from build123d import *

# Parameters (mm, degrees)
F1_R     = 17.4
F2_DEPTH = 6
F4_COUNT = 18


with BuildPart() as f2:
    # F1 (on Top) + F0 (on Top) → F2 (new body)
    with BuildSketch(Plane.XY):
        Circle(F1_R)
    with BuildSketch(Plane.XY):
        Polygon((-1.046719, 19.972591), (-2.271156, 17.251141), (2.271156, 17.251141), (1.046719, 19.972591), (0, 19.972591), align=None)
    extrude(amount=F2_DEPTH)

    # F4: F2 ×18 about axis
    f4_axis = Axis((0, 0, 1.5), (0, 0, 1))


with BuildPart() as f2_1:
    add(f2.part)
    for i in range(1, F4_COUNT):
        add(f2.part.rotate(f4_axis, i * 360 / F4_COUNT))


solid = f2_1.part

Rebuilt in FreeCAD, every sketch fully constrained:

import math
import FreeCAD as App
import Part
import Sketcher
from FreeCAD import Vector

doc = App.newDocument("Part")
body = doc.addObject("PartDesign::Body", "Body")

sketch1 = body.newObject("Sketcher::SketchObject", "Sketch")
sketch1.AttachmentSupport = (doc.getObject("XY_Plane"), [""])
sketch1.MapMode = "FlatFace"
sketch1.addGeometry([
    Part.ArcOfCircle(Part.Circle(Vector(0, 0, 0), Vector(0, 0, 1), 17.4), math.radians(97.49999), math.radians(442.50001)),
    Part.LineSegment(Vector(2.271156, 17.251141, 0), Vector(2.271153, 17.251141, 0)),
    Part.LineSegment(Vector(2.271156, 17.251141, 0), Vector(1.046719, 19.972591, 0)),
    Part.LineSegment(Vector(1.046719, 19.972591, 0), Vector(-1.046719, 19.972591, 0)),
    Part.LineSegment(Vector(-1.046719, 19.972591, 0), Vector(-2.271156, 17.251141, 0)),
    Part.LineSegment(Vector(-2.271153, 17.251141, 0), Vector(-2.271156, 17.251141, 0)),
], False)
sketch1.addConstraint([
    Sketcher.Constraint("Coincident", 0, 2, 1, 1),
    Sketcher.Constraint("Coincident", 1, 2, 2, 1),
    Sketcher.Constraint("Coincident", 2, 2, 3, 1),
    Sketcher.Constraint("Coincident", 3, 2, 4, 1),
    Sketcher.Constraint("Coincident", 4, 2, 5, 1),
    Sketcher.Constraint("Coincident", 5, 2, 0, 1),
    Sketcher.Constraint("Horizontal", 1),
    Sketcher.Constraint("Horizontal", 3),
    Sketcher.Constraint("Horizontal", 5),
    Sketcher.Constraint("Coincident", 0, 3, -1, 1),
    Sketcher.Constraint("Symmetric", 0, 2, 4, 2, -2),
    Sketcher.Constraint("Equal", 1, 5),
    Sketcher.Constraint("Equal", 2, 4),
    Sketcher.Constraint("Radius", 0, 17.4),
    Sketcher.Constraint("DistanceX", 3, 2, 3, 1, 2.093438),
    Sketcher.Constraint("DistanceY", -1, 1, 0, 2, 17.251141),
    Sketcher.Constraint("DistanceY", -1, 1, 2, 2, 19.972591),
])
pad1 = body.newObject("PartDesign::Pad", "Pad")
pad1.Profile = sketch1
pad1.Length = 6
body2 = doc.addObject("PartDesign::Body", "Body001")
doc.recompute()

body2.BaseFeature = body
doc.recompute()

body3 = doc.addObject("PartDesign::Body", "Body002")
body3.BaseFeature = body
body3.Placement = App.Placement(Vector(0, 0, 0), App.Rotation(Vector(0, 0, 1), 20))
boolean = body2.newObject("PartDesign::Boolean", "Boolean")
boolean.Type = "Fuse"
boolean.addObjects([body3])
doc.recompute()

body4 = doc.addObject("PartDesign::Body", "Body003")
body4.BaseFeature = body
body4.Placement = App.Placement(Vector(0, 0, 0), App.Rotation(Vector(0, 0, 1), 40))
boolean2 = body2.newObject("PartDesign::Boolean", "Boolean001")
boolean2.Type = "Fuse"
boolean2.addObjects([body4])
doc.recompute()

body5 = doc.addObject("PartDesign::Body", "Body004")
body5.BaseFeature = body
body5.Placement = App.Placement(Vector(0, 0, 0), App.Rotation(Vector(0, 0, 1), 60))
boolean3 = body2.newObject("PartDesign::Boolean", "Boolean002")
boolean3.Type = "Fuse"
boolean3.addObjects([body5])
doc.recompute()

body6 = doc.addObject("PartDesign::Body", "Body005")
body6.BaseFeature = body
body6.Placement = App.Placement(Vector(0, 0, 0), App.Rotation(Vector(0, 0, 1), 80))
boolean4 = body2.newObject("PartDesign::Boolean", "Boolean003")
boolean4.Type = "Fuse"
boolean4.addObjects([body6])
doc.recompute()

body7 = doc.addObject("PartDesign::Body", "Body006")
body7.BaseFeature = body
body7.Placement = App.Placement(Vector(0, 0, 0), App.Rotation(Vector(0, 0, 1), 100))
boolean5 = body2.newObject("PartDesign::Boolean", "Boolean004")
boolean5.Type = "Fuse"
boolean5.addObjects([body7])
doc.recompute()

body8 = doc.addObject("PartDesign::Body", "Body007")
body8.BaseFeature = body
body8.Placement = App.Placement(Vector(0, 0, 0), App.Rotation(Vector(0, 0, 1), 120))
boolean6 = body2.newObject("PartDesign::Boolean", "Boolean005")
boolean6.Type = "Fuse"
boolean6.addObjects([body8])
doc.recompute()

body9 = doc.addObject("PartDesign::Body", "Body008")
body9.BaseFeature = body
body9.Placement = App.Placement(Vector(0, 0, 0), App.Rotation(Vector(0, 0, 1), 140))
boolean7 = body2.newObject("PartDesign::Boolean", "Boolean006")
boolean7.Type = "Fuse"
boolean7.addObjects([body9])
doc.recompute()

body10 = doc.addObject("PartDesign::Body", "Body009")
body10.BaseFeature = body
body10.Placement = App.Placement(Vector(0, 0, 0), App.Rotation(Vector(0, 0, 1), 160))
boolean8 = body2.newObject("PartDesign::Boolean", "Boolean007")
boolean8.Type = "Fuse"
boolean8.addObjects([body10])
doc.recompute()

body11 = doc.addObject("PartDesign::Body", "Body010")
body11.BaseFeature = body
body11.Placement = App.Placement(Vector(0, 0, 0), App.Rotation(Vector(0, 0, 1), 180))
boolean9 = body2.newObject("PartDesign::Boolean", "Boolean008")
boolean9.Type = "Fuse"
boolean9.addObjects([body11])
doc.recompute()

body12 = doc.addObject("PartDesign::Body", "Body011")
body12.BaseFeature = body
body12.Placement = App.Placement(Vector(0, 0, 0), App.Rotation(Vector(0, 0, 1), 200))
boolean10 = body2.newObject("PartDesign::Boolean", "Boolean009")
boolean10.Type = "Fuse"
boolean10.addObjects([body12])
doc.recompute()

body13 = doc.addObject("PartDesign::Body", "Body012")
body13.BaseFeature = body
body13.Placement = App.Placement(Vector(0, 0, 0), App.Rotation(Vector(0, 0, 1), 220))
boolean11 = body2.newObject("PartDesign::Boolean", "Boolean010")
boolean11.Type = "Fuse"
boolean11.addObjects([body13])
doc.recompute()

body14 = doc.addObject("PartDesign::Body", "Body013")
body14.BaseFeature = body
body14.Placement = App.Placement(Vector(0, 0, 0), App.Rotation(Vector(0, 0, 1), 240))
boolean12 = body2.newObject("PartDesign::Boolean", "Boolean011")
boolean12.Type = "Fuse"
boolean12.addObjects([body14])
doc.recompute()

body15 = doc.addObject("PartDesign::Body", "Body014")
body15.BaseFeature = body
body15.Placement = App.Placement(Vector(0, 0, 0), App.Rotation(Vector(0, 0, 1), 260))
boolean13 = body2.newObject("PartDesign::Boolean", "Boolean012")
boolean13.Type = "Fuse"
boolean13.addObjects([body15])
doc.recompute()

body16 = doc.addObject("PartDesign::Body", "Body015")
body16.BaseFeature = body
body16.Placement = App.Placement(Vector(0, 0, 0), App.Rotation(Vector(0, 0, 1), 280))
boolean14 = body2.newObject("PartDesign::Boolean", "Boolean013")
boolean14.Type = "Fuse"
boolean14.addObjects([body16])
doc.recompute()

body17 = doc.addObject("PartDesign::Body", "Body016")
body17.BaseFeature = body
body17.Placement = App.Placement(Vector(0, 0, 0), App.Rotation(Vector(0, 0, 1), 300))
boolean15 = body2.newObject("PartDesign::Boolean", "Boolean014")
boolean15.Type = "Fuse"
boolean15.addObjects([body17])
doc.recompute()

body18 = doc.addObject("PartDesign::Body", "Body017")
body18.BaseFeature = body
body18.Placement = App.Placement(Vector(0, 0, 0), App.Rotation(Vector(0, 0, 1), 320))
boolean16 = body2.newObject("PartDesign::Boolean", "Boolean015")
boolean16.Type = "Fuse"
boolean16.addObjects([body18])
doc.recompute()

body.Placement = App.Placement(Vector(0, 0, 0), App.Rotation(Vector(0, 0, 1), 340))
boolean17 = body2.newObject("PartDesign::Boolean", "Boolean016")
boolean17.Type = "Fuse"
boolean17.addObjects([body])

doc.recompute()
